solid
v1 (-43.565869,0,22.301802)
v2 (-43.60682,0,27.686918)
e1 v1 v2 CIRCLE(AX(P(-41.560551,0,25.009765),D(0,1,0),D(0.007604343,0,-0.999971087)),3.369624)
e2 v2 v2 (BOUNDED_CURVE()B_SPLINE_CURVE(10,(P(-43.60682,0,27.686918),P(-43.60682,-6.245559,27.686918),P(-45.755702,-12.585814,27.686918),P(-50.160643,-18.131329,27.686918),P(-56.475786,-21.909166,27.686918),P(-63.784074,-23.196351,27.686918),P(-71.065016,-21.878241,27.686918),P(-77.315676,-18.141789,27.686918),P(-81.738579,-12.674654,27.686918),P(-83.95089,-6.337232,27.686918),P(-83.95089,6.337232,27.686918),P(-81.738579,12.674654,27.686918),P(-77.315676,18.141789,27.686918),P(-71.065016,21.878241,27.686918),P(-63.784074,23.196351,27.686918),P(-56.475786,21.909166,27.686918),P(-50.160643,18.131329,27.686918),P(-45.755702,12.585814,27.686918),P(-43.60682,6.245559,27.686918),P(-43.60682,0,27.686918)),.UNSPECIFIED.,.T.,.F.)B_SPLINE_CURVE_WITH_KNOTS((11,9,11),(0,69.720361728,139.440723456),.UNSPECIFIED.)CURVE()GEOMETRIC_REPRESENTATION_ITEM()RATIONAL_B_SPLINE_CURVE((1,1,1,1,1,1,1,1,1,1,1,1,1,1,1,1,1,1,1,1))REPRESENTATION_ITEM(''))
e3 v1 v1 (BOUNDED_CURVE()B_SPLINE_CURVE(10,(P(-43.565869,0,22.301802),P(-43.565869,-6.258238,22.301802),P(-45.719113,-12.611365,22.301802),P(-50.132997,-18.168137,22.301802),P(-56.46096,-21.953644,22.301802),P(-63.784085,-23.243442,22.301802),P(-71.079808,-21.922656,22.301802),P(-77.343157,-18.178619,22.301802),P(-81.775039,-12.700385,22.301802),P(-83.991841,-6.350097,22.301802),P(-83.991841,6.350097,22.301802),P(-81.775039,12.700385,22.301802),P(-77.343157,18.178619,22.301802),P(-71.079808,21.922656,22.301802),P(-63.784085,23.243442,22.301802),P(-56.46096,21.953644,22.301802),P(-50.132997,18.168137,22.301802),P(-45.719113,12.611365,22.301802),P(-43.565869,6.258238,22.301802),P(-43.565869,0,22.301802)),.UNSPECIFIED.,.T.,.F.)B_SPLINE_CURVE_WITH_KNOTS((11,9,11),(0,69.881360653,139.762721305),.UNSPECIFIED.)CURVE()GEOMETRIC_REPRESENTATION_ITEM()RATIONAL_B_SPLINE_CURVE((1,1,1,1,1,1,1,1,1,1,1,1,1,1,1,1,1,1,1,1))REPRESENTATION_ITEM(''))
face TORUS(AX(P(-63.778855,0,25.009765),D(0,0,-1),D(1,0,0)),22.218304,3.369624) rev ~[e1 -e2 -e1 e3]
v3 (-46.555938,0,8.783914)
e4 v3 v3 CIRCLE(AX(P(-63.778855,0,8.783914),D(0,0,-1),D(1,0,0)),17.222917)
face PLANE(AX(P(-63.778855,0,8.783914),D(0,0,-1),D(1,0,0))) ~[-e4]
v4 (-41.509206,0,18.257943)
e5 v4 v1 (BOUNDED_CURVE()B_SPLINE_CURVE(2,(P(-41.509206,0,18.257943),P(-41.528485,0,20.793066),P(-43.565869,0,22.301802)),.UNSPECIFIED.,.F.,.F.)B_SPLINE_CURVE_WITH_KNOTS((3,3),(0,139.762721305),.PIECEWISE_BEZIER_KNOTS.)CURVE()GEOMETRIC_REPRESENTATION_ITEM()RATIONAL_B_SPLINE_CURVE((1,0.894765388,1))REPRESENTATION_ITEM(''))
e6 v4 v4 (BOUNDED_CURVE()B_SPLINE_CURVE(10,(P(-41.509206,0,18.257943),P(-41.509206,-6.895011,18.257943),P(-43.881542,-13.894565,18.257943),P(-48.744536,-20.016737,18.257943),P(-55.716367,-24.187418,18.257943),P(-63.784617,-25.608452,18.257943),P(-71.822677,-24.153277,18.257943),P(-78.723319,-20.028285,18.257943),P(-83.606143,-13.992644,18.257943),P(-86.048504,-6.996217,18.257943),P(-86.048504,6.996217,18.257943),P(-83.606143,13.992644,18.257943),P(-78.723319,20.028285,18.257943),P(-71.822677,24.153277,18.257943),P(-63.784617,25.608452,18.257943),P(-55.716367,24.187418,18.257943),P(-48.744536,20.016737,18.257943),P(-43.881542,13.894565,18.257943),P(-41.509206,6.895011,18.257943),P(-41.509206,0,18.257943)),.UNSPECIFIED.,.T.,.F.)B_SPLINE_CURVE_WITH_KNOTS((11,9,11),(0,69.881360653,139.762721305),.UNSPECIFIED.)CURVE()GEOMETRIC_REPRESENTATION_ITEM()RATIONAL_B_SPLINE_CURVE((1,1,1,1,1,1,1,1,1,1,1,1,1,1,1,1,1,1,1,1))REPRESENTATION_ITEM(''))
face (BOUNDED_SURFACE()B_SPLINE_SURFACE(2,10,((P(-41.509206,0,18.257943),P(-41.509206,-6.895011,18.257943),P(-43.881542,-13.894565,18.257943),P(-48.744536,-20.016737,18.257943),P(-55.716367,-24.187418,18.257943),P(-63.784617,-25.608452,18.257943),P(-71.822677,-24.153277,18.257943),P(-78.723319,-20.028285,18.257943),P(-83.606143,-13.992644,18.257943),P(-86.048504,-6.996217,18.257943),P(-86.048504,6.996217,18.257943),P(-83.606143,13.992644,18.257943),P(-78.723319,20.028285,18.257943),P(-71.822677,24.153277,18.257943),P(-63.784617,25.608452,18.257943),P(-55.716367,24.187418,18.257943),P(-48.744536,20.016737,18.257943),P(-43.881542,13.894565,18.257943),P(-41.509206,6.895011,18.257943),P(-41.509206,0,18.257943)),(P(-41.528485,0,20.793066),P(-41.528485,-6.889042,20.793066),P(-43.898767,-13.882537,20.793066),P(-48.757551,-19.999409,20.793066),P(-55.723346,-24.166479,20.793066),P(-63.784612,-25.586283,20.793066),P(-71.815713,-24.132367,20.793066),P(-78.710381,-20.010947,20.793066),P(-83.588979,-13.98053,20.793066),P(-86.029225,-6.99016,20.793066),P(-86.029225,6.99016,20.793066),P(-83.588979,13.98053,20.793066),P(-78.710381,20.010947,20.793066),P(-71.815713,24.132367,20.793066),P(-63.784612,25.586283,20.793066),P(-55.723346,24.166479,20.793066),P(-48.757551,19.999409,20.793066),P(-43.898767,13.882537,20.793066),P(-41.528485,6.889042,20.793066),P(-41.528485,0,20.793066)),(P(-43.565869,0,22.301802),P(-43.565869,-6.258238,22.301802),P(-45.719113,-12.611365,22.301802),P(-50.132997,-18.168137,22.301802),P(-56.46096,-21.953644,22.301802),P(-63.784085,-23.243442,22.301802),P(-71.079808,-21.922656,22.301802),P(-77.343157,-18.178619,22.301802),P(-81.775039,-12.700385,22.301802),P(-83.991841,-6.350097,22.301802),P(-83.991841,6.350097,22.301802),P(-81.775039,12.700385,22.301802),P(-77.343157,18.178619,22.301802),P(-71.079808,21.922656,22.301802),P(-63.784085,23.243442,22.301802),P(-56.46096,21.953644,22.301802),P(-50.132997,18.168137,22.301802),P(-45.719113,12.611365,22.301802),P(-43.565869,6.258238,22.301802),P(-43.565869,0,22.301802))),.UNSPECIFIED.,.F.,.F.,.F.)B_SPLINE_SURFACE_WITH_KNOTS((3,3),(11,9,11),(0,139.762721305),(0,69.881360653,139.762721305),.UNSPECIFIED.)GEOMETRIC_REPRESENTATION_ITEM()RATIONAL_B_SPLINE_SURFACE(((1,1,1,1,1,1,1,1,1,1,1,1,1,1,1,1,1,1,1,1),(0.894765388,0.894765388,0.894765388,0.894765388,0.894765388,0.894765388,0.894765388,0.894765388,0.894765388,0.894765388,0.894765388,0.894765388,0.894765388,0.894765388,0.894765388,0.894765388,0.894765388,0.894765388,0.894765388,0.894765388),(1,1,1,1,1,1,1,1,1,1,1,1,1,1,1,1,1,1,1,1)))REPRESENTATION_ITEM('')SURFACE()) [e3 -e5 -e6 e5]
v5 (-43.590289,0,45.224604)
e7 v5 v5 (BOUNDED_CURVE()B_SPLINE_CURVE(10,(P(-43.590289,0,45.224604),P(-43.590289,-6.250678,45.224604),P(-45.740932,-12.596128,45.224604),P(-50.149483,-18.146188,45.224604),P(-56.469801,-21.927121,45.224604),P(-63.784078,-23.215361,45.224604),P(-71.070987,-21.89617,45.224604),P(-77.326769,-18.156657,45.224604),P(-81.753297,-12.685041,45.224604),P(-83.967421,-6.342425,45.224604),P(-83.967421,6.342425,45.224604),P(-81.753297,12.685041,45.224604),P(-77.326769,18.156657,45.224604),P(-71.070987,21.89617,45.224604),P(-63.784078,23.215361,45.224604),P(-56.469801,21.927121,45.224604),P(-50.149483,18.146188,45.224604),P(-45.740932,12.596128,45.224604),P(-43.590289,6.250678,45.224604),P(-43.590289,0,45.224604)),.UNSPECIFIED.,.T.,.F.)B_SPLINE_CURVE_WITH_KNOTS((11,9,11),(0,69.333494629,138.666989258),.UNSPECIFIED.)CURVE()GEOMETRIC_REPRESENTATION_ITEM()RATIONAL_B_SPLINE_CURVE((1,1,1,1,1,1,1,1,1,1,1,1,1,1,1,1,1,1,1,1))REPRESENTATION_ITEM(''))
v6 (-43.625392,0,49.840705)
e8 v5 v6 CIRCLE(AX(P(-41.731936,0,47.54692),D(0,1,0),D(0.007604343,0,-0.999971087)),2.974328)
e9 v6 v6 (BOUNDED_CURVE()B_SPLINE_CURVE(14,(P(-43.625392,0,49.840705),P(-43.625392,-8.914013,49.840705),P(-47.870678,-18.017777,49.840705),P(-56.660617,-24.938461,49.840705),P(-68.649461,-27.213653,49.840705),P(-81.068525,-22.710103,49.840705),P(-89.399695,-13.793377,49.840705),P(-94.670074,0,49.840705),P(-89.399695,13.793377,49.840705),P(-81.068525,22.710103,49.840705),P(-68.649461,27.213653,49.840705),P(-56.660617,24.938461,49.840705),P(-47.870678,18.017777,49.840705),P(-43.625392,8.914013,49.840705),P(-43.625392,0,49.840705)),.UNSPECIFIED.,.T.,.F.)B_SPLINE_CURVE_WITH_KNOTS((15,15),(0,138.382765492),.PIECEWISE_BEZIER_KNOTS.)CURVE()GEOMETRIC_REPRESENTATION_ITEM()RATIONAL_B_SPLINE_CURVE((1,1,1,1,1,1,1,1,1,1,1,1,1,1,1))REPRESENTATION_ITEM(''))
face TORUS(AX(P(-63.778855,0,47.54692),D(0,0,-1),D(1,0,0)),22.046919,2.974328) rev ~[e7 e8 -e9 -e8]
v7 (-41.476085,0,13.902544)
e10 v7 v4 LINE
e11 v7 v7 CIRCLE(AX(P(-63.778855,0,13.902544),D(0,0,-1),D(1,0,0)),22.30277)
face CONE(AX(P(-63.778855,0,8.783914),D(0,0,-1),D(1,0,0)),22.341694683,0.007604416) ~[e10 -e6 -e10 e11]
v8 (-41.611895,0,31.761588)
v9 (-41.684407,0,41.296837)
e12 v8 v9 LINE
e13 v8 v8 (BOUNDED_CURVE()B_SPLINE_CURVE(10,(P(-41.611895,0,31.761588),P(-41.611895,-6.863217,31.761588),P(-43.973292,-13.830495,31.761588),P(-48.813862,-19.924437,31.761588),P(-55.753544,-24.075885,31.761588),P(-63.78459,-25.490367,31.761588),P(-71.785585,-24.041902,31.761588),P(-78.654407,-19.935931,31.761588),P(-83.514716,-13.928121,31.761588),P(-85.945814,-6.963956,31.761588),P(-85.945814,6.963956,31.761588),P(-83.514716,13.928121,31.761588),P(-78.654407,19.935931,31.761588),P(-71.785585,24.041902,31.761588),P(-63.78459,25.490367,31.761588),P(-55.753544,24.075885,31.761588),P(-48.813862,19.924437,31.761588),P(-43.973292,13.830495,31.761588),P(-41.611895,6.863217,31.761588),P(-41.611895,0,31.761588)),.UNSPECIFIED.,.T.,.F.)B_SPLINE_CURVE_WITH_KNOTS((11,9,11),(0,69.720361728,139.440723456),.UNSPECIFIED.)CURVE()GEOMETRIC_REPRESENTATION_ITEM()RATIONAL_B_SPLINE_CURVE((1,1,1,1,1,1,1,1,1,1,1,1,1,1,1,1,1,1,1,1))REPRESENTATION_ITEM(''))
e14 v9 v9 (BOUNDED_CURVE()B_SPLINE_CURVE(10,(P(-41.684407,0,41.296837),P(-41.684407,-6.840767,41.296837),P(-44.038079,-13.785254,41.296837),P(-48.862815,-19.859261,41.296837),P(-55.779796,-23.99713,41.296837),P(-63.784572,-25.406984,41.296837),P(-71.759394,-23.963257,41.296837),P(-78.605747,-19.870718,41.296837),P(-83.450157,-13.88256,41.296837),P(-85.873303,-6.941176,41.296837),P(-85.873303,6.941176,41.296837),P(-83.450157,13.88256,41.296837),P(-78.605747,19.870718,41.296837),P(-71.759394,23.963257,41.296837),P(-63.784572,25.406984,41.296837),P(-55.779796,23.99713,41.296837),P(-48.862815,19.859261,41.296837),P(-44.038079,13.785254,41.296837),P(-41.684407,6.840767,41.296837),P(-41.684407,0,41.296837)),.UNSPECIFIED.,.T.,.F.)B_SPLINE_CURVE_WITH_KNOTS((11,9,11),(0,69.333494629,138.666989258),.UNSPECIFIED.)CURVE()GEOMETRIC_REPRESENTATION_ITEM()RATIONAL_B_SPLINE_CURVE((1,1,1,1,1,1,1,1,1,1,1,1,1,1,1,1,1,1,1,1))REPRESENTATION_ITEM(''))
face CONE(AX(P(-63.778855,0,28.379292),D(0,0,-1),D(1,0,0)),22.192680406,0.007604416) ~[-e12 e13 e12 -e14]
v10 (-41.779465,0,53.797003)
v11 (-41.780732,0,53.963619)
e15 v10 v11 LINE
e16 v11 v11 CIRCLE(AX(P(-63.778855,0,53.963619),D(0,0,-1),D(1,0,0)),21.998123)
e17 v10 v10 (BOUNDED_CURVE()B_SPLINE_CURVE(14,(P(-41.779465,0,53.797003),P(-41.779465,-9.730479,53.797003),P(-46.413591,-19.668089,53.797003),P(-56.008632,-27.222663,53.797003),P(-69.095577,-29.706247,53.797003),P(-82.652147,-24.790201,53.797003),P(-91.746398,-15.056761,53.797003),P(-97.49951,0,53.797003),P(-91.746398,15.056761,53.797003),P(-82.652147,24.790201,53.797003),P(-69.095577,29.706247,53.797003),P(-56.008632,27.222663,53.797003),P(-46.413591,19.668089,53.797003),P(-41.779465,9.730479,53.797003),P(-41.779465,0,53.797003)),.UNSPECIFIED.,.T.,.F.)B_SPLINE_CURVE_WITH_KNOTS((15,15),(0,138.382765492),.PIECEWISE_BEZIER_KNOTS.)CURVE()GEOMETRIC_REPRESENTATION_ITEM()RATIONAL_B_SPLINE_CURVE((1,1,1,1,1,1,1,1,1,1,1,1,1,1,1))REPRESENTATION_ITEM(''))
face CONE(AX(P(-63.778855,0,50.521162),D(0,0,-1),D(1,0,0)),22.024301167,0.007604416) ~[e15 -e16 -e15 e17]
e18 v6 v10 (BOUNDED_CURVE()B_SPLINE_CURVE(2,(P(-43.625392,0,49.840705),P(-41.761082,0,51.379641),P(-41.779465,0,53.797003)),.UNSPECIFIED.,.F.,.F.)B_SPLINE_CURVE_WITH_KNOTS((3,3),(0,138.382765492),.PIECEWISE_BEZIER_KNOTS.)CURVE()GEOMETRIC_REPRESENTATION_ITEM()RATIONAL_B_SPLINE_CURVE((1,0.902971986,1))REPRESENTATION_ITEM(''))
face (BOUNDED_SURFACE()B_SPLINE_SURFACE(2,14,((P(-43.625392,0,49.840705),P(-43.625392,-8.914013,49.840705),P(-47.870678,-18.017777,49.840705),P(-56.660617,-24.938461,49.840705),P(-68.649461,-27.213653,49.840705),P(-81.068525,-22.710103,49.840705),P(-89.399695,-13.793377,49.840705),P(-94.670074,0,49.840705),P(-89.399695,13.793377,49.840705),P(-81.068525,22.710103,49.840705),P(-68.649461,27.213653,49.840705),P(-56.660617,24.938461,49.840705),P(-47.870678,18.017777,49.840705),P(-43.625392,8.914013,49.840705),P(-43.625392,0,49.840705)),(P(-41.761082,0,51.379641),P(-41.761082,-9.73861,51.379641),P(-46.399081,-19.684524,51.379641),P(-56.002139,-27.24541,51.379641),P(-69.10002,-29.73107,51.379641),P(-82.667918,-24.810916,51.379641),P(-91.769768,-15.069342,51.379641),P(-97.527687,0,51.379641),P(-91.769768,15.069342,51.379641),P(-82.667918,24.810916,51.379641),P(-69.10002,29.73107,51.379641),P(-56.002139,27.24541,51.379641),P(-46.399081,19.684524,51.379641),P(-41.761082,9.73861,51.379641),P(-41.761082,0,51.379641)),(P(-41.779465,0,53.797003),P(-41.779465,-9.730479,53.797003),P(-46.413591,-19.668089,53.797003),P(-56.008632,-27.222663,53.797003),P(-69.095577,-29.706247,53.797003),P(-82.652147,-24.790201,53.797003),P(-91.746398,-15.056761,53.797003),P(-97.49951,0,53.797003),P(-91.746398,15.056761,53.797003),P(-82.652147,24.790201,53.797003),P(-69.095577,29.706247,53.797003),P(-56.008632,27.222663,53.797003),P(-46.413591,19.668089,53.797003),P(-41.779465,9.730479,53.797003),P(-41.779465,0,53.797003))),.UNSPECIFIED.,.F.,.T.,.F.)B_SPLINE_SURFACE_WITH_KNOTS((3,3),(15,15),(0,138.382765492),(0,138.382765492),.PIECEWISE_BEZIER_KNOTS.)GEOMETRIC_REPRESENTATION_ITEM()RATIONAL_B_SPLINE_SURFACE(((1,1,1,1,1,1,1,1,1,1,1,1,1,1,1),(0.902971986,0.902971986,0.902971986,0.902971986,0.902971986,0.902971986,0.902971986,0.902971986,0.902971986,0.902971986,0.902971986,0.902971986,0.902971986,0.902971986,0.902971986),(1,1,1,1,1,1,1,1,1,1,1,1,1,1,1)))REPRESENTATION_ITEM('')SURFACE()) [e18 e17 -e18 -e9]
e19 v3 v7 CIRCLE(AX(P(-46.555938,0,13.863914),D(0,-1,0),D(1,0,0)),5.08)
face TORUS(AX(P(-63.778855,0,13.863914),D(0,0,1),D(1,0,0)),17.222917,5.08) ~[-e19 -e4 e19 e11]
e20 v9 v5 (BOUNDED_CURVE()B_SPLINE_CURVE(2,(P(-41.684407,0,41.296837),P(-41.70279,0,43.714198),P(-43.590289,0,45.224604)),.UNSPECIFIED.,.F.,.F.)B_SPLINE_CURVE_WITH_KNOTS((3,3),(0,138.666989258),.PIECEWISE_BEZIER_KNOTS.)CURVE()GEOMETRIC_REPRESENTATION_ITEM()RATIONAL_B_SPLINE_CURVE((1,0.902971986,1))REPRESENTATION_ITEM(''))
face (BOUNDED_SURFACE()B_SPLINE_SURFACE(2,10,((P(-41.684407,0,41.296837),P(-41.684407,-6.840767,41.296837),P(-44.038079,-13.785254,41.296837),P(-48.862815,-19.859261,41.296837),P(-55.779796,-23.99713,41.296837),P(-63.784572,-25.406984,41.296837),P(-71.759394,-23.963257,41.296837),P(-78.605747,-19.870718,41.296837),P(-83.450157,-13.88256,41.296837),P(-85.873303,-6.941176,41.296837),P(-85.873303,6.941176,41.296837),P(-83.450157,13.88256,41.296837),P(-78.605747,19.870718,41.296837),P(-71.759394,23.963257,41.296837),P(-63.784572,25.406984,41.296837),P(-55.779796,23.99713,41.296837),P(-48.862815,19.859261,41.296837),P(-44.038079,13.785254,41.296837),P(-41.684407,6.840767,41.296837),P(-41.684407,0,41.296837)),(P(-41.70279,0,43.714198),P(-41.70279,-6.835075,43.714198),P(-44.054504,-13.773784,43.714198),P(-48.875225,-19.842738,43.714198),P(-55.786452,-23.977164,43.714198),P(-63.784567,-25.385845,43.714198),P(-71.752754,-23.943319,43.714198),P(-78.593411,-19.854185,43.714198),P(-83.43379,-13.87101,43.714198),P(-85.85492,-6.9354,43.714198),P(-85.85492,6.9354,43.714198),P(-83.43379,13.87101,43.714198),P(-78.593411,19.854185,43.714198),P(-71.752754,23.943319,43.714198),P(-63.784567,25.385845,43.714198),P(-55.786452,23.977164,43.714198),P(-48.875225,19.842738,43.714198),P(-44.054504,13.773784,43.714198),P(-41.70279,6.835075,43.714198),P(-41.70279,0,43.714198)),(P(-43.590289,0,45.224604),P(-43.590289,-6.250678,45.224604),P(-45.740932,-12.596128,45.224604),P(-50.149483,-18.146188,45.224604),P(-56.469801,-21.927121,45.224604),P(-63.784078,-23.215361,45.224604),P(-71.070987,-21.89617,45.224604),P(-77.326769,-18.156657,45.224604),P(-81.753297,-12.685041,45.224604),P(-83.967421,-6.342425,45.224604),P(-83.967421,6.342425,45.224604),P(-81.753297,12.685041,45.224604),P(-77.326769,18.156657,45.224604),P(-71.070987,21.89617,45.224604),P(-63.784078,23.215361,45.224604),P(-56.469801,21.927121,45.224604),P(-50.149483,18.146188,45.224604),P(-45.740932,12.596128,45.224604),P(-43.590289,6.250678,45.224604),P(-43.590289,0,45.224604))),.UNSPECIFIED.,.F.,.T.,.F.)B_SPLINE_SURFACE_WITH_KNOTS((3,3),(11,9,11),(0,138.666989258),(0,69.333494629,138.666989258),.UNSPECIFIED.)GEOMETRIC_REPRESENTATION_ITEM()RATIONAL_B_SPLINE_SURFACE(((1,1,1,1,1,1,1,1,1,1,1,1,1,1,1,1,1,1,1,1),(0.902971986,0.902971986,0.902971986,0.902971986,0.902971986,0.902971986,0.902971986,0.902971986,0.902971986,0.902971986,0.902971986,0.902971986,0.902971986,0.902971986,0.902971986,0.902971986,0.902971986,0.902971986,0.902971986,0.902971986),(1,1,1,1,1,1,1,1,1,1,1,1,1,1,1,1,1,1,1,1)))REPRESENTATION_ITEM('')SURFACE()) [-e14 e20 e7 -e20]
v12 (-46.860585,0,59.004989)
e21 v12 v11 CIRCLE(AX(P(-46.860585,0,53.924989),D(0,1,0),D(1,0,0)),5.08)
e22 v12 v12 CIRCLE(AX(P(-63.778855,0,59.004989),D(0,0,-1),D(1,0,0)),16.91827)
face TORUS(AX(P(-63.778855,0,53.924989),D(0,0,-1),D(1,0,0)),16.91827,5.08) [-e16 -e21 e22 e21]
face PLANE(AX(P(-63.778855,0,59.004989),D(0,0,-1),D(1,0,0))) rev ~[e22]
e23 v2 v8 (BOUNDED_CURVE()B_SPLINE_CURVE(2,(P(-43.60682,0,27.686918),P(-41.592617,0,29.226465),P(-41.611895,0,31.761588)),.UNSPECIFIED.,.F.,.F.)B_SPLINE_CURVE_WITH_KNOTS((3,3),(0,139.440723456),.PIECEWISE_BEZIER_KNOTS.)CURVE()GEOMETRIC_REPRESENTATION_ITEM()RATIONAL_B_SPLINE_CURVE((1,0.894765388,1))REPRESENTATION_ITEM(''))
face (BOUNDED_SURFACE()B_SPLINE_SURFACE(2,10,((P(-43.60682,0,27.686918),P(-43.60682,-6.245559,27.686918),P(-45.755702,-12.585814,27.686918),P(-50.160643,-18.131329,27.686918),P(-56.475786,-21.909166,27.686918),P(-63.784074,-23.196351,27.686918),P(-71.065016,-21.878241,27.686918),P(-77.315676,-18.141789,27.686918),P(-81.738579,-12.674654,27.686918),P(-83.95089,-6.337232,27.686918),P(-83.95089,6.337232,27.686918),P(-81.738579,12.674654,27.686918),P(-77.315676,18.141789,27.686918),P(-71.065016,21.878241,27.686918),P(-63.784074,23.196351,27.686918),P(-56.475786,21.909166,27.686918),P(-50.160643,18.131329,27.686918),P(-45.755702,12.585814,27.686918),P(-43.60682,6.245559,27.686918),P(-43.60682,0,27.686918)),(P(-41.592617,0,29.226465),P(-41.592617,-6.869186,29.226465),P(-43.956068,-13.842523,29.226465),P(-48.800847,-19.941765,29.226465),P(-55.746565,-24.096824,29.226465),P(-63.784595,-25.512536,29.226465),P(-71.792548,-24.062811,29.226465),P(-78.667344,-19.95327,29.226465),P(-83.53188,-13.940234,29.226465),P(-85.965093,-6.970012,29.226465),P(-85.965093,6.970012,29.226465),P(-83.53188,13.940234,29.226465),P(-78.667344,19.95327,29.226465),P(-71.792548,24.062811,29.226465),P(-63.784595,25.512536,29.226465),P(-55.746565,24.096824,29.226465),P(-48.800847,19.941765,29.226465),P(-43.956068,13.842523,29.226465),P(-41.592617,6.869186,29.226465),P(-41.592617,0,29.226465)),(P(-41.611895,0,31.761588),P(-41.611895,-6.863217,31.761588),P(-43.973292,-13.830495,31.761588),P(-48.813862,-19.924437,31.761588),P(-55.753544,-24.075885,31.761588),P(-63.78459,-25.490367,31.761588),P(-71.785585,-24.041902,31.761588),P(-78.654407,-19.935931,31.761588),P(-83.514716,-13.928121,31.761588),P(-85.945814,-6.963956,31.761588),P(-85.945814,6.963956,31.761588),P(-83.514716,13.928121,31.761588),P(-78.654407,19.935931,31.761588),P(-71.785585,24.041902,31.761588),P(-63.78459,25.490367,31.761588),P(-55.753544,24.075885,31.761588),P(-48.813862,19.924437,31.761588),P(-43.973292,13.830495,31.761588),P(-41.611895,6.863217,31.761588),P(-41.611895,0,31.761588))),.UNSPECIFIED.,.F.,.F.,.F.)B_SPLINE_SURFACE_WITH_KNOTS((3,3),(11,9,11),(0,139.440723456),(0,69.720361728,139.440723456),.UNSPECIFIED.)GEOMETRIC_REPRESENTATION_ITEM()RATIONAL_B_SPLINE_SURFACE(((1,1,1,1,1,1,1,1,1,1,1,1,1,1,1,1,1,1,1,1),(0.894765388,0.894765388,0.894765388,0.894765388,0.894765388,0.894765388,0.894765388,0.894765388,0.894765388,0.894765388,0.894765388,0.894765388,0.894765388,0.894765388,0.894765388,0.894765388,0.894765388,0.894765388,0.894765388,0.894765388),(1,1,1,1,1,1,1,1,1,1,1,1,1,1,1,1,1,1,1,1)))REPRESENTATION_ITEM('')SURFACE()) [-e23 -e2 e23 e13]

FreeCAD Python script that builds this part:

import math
import FreeCAD as App
import Part
import Sketcher

V = App.Vector
Q = App.Units.Quantity


def edges_at(feature, points):
    """Names of the edges that pass closest to the given points."""
    edges = feature.Shape.Edges
    near = lambda p: min(range(len(edges)), key=lambda i: edges[i].distToShape(Part.Vertex(*p))[0])
    return sorted({f"Edge{near(p) + 1}" for p in points})

doc = App.newDocument("Part")
params = doc.addObject("Spreadsheet::Sheet", "Params")
for row, (alias, value) in enumerate([
    ("revolution_angle", "360 deg"),
    ("fillet_radius", "0.2 in"),
], start=1):
    params.set(f"A{row}", alias)
    params.set(f"B{row}", "=" + value)
    params.setAlias(f"B{row}", alias)

body = doc.addObject("PartDesign::Body", "Body")

# Sketch on XZ plane
sketch1 = body.newObject("Sketcher::SketchObject", "Sketch")
sketch1.AttachmentSupport = (doc.getObject("XZ_Plane"), [""])
sketch1.MapMode = "FlatFace"
sketch1.addGeometry([
    Part.LineSegment(V(-41.81907, 59.004989, 0), V(-63.778855, 59.004989, 0)),  # 0
    Part.LineSegment(V(-63.778855, 59.004989, 0), V(-63.778855, 8.783914, 0)),  # 1
    Part.LineSegment(V(-63.778855, 8.783914, 0), V(-41.43716, 8.783914, 0)),  # 2
    Part.LineSegment(V(-41.43716, 8.783914, 0), V(-41.534927, 21.640239, 0)),  # 3
    Part.ArcOfCircle(Part.Circle(V(-41.560551, 25.009765, 0), V(0, 0, 1), 3.369624), math.radians(90.435701), math.radians(270.435701)),  # 4
    Part.LineSegment(V(-41.586174, 28.379292, 0), V(-41.709318, 44.572678, 0)),  # 5
    Part.ArcOfCircle(Part.Circle(V(-41.731936, 47.54692, 0), V(0, 0, 1), 2.974328), math.radians(90.435701), math.radians(270.435701)),  # 6
    Part.LineSegment(V(-41.754554, 50.521162, 0), V(-41.81907, 59.004989, 0)),  # 7
], False)
sketch1.addGeometry(Part.LineSegment(V(-63.778855, 59.004989, 0), V(-63.778855, 8.783914, 0)), True)  # axis
sketch1.addConstraint([
    Sketcher.Constraint("Coincident", 0, 2, 1, 1),
    Sketcher.Constraint("Coincident", 1, 2, 2, 1),
    Sketcher.Constraint("Coincident", 2, 2, 3, 1),
    Sketcher.Constraint("Coincident", 3, 2, 4, 2),
    Sketcher.Constraint("Coincident", 4, 1, 5, 1),
    Sketcher.Constraint("Coincident", 5, 2, 6, 2),
    Sketcher.Constraint("Coincident", 6, 1, 7, 1),
    Sketcher.Constraint("Coincident", 7, 2, 0, 1),
    Sketcher.Constraint("Horizontal", 0),
    Sketcher.Constraint("Vertical", 1),
    Sketcher.Constraint("Horizontal", 2),
    Sketcher.Constraint("Vertical", 8),
    Sketcher.Constraint("Coincident", 8, 1, 0, 2),
    Sketcher.Constraint("Parallel", 3, 5),
    Sketcher.Constraint("Parallel", 5, 7),
    Sketcher.Constraint("Horizontal", 2, 2, 8, 2),
    Sketcher.Constraint("Radius", 4, Q("3.369624 mm")),
    Sketcher.Constraint("Radius", 6, Q("2.974328 mm")),
    Sketcher.Constraint("DistanceX", 0, 2, 6, 1, Q("22.024301 mm")),
    Sketcher.Constraint("DistanceX", 0, 2, 0, 1, Q("21.959785 mm")),
    Sketcher.Constraint("DistanceX", 2, 1, 2, 2, Q("22.341695 mm")),
    Sketcher.Constraint("DistanceY", 1, 2, 1, 1, Q("50.221074 mm")),
    Sketcher.Constraint("DistanceX", 4, 3, -1, 1, Q("41.560551 mm")),
    Sketcher.Constraint("DistanceY", -1, 1, 6, 3, Q("47.54692 mm")),
    Sketcher.Constraint("DistanceY", -1, 1, 0, 2, Q("59.004989 mm")),
    Sketcher.Constraint("DistanceX", 2, 2, -1, 1, Q("41.43716 mm")),
    Sketcher.Constraint("DistanceY", -1, 1, 3, 2, Q("21.640239 mm")),
    Sketcher.Constraint("DistanceY", -1, 1, 4, 1, Q("28.379292 mm")),
    Sketcher.Constraint("DistanceY", -1, 1, 6, 1, Q("50.521162 mm")),
])
revolution = body.newObject("PartDesign::Revolution", "Revolution")
revolution.Profile = sketch1
revolution.ReferenceAxis = (sketch1, ["Axis0"])
revolution.setExpression("Angle", "Params.revolution_angle")
doc.recompute()

fillet = body.newObject("PartDesign::Fillet", "Fillet")
fillet.Base = (revolution, edges_at(revolution, [
    (-85.739, 0, 59.005),
    (-85.803, 0, 50.521),
    (-85.848, 0, 44.573),
    (-85.972, 0, 28.379),
    (-86.023, 0, 21.64),
    (-44.93, 0, 24.984),
    (-86.121, 0, 8.784),
]))
fillet.setExpression("Radius", "Params.fillet_radius")

doc.recompute()
